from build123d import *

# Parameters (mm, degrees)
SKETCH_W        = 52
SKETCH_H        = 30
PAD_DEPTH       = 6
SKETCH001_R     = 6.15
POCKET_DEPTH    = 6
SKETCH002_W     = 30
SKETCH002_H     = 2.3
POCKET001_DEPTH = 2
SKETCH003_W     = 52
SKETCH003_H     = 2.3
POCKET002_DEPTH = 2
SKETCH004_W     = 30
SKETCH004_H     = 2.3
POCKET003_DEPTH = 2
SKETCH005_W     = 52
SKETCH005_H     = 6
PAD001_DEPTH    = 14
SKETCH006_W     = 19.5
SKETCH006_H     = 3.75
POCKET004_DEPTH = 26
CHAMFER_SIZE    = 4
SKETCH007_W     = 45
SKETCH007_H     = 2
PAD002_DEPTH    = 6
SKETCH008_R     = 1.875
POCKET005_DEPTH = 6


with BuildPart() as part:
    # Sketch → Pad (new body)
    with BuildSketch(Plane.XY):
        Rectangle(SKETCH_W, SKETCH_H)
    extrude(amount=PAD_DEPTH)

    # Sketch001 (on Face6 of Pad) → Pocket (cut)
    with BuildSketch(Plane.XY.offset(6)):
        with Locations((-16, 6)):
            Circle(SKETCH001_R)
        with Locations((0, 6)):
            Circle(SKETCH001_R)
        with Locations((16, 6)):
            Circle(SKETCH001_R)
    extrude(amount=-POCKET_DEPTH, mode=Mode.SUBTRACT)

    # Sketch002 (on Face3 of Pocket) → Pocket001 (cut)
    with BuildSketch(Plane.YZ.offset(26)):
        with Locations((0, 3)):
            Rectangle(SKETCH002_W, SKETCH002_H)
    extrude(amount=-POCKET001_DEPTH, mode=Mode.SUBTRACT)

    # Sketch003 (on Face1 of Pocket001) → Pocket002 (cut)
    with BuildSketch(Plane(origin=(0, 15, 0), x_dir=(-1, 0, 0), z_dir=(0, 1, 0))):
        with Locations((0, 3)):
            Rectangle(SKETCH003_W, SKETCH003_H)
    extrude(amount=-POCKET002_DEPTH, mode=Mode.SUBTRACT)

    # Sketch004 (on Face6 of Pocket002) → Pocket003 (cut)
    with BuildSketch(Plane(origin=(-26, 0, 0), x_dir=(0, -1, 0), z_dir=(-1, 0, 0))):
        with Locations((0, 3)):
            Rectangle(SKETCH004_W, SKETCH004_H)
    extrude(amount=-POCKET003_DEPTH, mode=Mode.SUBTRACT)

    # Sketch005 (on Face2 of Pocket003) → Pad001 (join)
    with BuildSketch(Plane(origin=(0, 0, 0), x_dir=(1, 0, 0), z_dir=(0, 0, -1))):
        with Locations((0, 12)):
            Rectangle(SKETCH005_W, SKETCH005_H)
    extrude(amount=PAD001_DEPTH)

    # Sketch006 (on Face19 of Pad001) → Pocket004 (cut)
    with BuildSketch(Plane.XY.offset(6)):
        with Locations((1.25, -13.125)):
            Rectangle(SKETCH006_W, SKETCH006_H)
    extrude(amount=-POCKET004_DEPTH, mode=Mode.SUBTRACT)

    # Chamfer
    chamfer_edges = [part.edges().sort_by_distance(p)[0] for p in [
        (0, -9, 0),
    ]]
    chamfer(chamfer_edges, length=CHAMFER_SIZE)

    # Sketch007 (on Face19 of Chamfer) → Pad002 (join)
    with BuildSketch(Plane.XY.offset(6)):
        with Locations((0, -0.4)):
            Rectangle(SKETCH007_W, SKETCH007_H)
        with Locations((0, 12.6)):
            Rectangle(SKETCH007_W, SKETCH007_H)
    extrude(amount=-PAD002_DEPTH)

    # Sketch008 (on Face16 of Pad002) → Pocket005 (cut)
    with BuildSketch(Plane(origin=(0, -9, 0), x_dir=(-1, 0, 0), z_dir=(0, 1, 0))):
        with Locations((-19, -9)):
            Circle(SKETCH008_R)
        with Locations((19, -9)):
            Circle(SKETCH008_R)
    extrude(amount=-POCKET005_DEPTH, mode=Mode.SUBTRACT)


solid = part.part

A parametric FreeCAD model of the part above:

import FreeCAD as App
import Part
import Sketcher
Q = App.Units.Quantity


def edges_at(feature, points):
    """Names of the edges that pass closest to the given points."""
    edges = feature.Shape.Edges
    near = lambda p: min(range(len(edges)), key=lambda i: edges[i].distToShape(Part.Vertex(*p))[0])
    return sorted({f"Edge{near(p) + 1}" for p in points})

doc = App.newDocument("Part")
body = doc.addObject("PartDesign::Body", "Body")

sketch1 = body.newObject("Sketcher::SketchObject", "Sketch")
sketch1.AttachmentSupport = (doc.getObject("XY_Plane"), [""])
sketch1.MapMode = "FlatFace"
sketch1.addGeometry([
    Part.LineSegment(App.Vector(-26, 15, 0), App.Vector(-26, -15, 0)),
    Part.LineSegment(App.Vector(-26, -15, 0), App.Vector(26, -15, 0)),
    Part.LineSegment(App.Vector(26, -15, 0), App.Vector(26, 15, 0)),
    Part.LineSegment(App.Vector(26, 15, 0), App.Vector(-26, 15, 0)),
], False)
sketch1.addConstraint([
    Sketcher.Constraint("Coincident", 0, 2, 1, 1),
    Sketcher.Constraint("Coincident", 1, 2, 2, 1),
    Sketcher.Constraint("Coincident", 2, 2, 3, 1),
    Sketcher.Constraint("Coincident", 3, 2, 0, 1),
    Sketcher.Constraint("Vertical", 0),
    Sketcher.Constraint("Horizontal", 1),
    Sketcher.Constraint("Vertical", 2),
    Sketcher.Constraint("Horizontal", 3),
    Sketcher.Constraint("Symmetric", 0, 2, 2, 2, -1, 1),
    Sketcher.Constraint("DistanceX", 1, 1, 1, 2, Q("52 mm")),
    Sketcher.Constraint("DistanceY", 0, 2, 0, 1, Q("30 mm")),
])
pad1 = body.newObject("PartDesign::Pad", "Pad")
pad1.Profile = sketch1
pad1.Length = 6

sketch2 = body.newObject("Sketcher::SketchObject", "Sketch001")
sketch2.AttachmentSupport = (doc.getObject("XY_Plane"), [""])
sketch2.MapMode = "FlatFace"
sketch2.AttachmentOffset = App.Placement(App.Vector(0, 0, 6), App.Rotation())
sketch2.addGeometry([
    Part.Circle(App.Vector(-16, 6, 0), App.Vector(0, 0, 1), 6.15),
    Part.Circle(App.Vector(0, 6, 0), App.Vector(0, 0, 1), 6.15),
    Part.Circle(App.Vector(16, 6, 0), App.Vector(0, 0, 1), 6.15),
], False)
sketch2.addConstraint([
    Sketcher.Constraint("Equal", 0, 1),
    Sketcher.Constraint("Equal", 1, 2),
    Sketcher.Constraint("Symmetric", 0, 3, 2, 3, -2),
    Sketcher.Constraint("PointOnObject", 1, 3, -2),
    Sketcher.Constraint("Horizontal", 0, 3, 1, 3),
    Sketcher.Constraint("Diameter", 0, Q("12.3 mm")),
    Sketcher.Constraint("DistanceX", 0, 3, -1, 1, Q("16 mm")),
    Sketcher.Constraint("DistanceY", -1, 1, 0, 3, Q("6 mm")),
])
pocket1 = body.newObject("PartDesign::Pocket", "Pocket")
pocket1.Profile = sketch2
pocket1.Length = 6

sketch3 = body.newObject("Sketcher::SketchObject", "Sketch002")
sketch3.AttachmentSupport = (doc.getObject("YZ_Plane"), [""])
sketch3.MapMode = "FlatFace"
sketch3.AttachmentOffset = App.Placement(App.Vector(0, 0, 26), App.Rotation())
sketch3.addGeometry([
    Part.LineSegment(App.Vector(-15, 4.15, 0), App.Vector(-15, 1.85, 0)),
    Part.LineSegment(App.Vector(-15, 1.85, 0), App.Vector(15, 1.85, 0)),
    Part.LineSegment(App.Vector(15, 1.85, 0), App.Vector(15, 4.15, 0)),
    Part.LineSegment(App.Vector(15, 4.15, 0), App.Vector(-15, 4.15, 0)),
], False)
sketch3.addConstraint([
    Sketcher.Constraint("Coincident", 0, 2, 1, 1),
    Sketcher.Constraint("Coincident", 1, 2, 2, 1),
    Sketcher.Constraint("Coincident", 2, 2, 3, 1),
    Sketcher.Constraint("Coincident", 3, 2, 0, 1),
    Sketcher.Constraint("Vertical", 0),
    Sketcher.Constraint("Horizontal", 1),
    Sketcher.Constraint("Vertical", 2),
    Sketcher.Constraint("Horizontal", 3),
    Sketcher.Constraint("DistanceX", 1, 1, 1, 2, Q("30 mm")),
    Sketcher.Constraint("DistanceY", 0, 2, 0, 1, Q("2.3 mm")),
    Sketcher.Constraint("DistanceX", 0, 2, -1, 1, Q("15 mm")),
    Sketcher.Constraint("DistanceY", -1, 1, 0, 2, Q("1.85 mm")),
])
pocket2 = body.newObject("PartDesign::Pocket", "Pocket001")
pocket2.Profile = sketch3
pocket2.Length = 2

sketch4 = body.newObject("Sketcher::SketchObject", "Sketch003")
sketch4.AttachmentSupport = (doc.getObject("XZ_Plane"), [""])
sketch4.MapMode = "FlatFace"
sketch4.AttachmentOffset = App.Placement(App.Vector(0, 0, -15), App.Rotation())
sketch4.addGeometry([
    Part.LineSegment(App.Vector(26, 4.15, 0), App.Vector(26, 1.85, 0)),
    Part.LineSegment(App.Vector(26, 1.85, 0), App.Vector(-26, 1.85, 0)),
    Part.LineSegment(App.Vector(-26, 1.85, 0), App.Vector(-26, 4.15, 0)),
    Part.LineSegment(App.Vector(-26, 4.15, 0), App.Vector(26, 4.15, 0)),
], False)
sketch4.addConstraint([
    Sketcher.Constraint("Coincident", 0, 2, 1, 1),
    Sketcher.Constraint("Coincident", 1, 2, 2, 1),
    Sketcher.Constraint("Coincident", 2, 2, 3, 1),
    Sketcher.Constraint("Coincident", 3, 2, 0, 1),
    Sketcher.Constraint("Vertical", 0),
    Sketcher.Constraint("Horizontal", 1),
    Sketcher.Constraint("Vertical", 2),
    Sketcher.Constraint("Horizontal", 3),
    Sketcher.Constraint("DistanceX", 1, 2, 1, 1, Q("52 mm")),
    Sketcher.Constraint("DistanceY", 0, 2, 0, 1, Q("2.3 mm")),
    Sketcher.Constraint("DistanceX", -1, 1, 0, 2, Q("26 mm")),
    Sketcher.Constraint("DistanceY", -1, 1, 0, 2, Q("1.85 mm")),
])
pocket3 = body.newObject("PartDesign::Pocket", "Pocket002")
pocket3.Profile = sketch4
pocket3.Length = 2
pocket3.Reversed = True

sketch5 = body.newObject("Sketcher::SketchObject", "Sketch004")
sketch5.AttachmentSupport = (doc.getObject("YZ_Plane"), [""])
sketch5.MapMode = "FlatFace"
sketch5.AttachmentOffset = App.Placement(App.Vector(0, 0, -26), App.Rotation())
sketch5.addGeometry([
    Part.LineSegment(App.Vector(15, 4.15, 0), App.Vector(15, 1.85, 0)),
    Part.LineSegment(App.Vector(15, 1.85, 0), App.Vector(-15, 1.85, 0)),
    Part.LineSegment(App.Vector(-15, 1.85, 0), App.Vector(-15, 4.15, 0)),
    Part.LineSegment(App.Vector(-15, 4.15, 0), App.Vector(15, 4.15, 0)),
], False)
sketch5.addConstraint([
    Sketcher.Constraint("Coincident", 0, 2, 1, 1),
    Sketcher.Constraint("Coincident", 1, 2, 2, 1),
    Sketcher.Constraint("Coincident", 2, 2, 3, 1),
    Sketcher.Constraint("Coincident", 3, 2, 0, 1),
    Sketcher.Constraint("Vertical", 0),
    Sketcher.Constraint("Horizontal", 1),
    Sketcher.Constraint("Vertical", 2),
    Sketcher.Constraint("Horizontal", 3),
    Sketcher.Constraint("DistanceX", 1, 2, 1, 1, Q("30 mm")),
    Sketcher.Constraint("DistanceY", 0, 2, 0, 1, Q("2.3 mm")),
    Sketcher.Constraint("DistanceX", -1, 1, 0, 2, Q("15 mm")),
    Sketcher.Constraint("DistanceY", -1, 1, 0, 2, Q("1.85 mm")),
])
pocket4 = body.newObject("PartDesign::Pocket", "Pocket003")
pocket4.Profile = sketch5
pocket4.Length = 2
pocket4.Reversed = True

sketch6 = body.newObject("Sketcher::SketchObject", "Sketch005")
sketch6.AttachmentSupport = (doc.getObject("XY_Plane"), [""])
sketch6.MapMode = "FlatFace"
sketch6.addGeometry([
    Part.LineSegment(App.Vector(-26, -15, 0), App.Vector(-26, -9, 0)),
    Part.LineSegment(App.Vector(-26, -9, 0), App.Vector(26, -9, 0)),
    Part.LineSegment(App.Vector(26, -9, 0), App.Vector(26, -15, 0)),
    Part.LineSegment(App.Vector(26, -15, 0), App.Vector(-26, -15, 0)),
], False)
sketch6.addConstraint([
    Sketcher.Constraint("Coincident", 0, 2, 1, 1),
    Sketcher.Constraint("Coincident", 1, 2, 2, 1),
    Sketcher.Constraint("Coincident", 2, 2, 3, 1),
    Sketcher.Constraint("Coincident", 3, 2, 0, 1),
    Sketcher.Constraint("Vertical", 0),
    Sketcher.Constraint("Horizontal", 1),
    Sketcher.Constraint("Vertical", 2),
    Sketcher.Constraint("Horizontal", 3),
    Sketcher.Constraint("DistanceX", 1, 1, 1, 2, Q("52 mm")),
    Sketcher.Constraint("DistanceY", 0, 1, 0, 2, Q("6 mm")),
    Sketcher.Constraint("DistanceX", 0, 2, -1, 1, Q("26 mm")),
    Sketcher.Constraint("DistanceY", 0, 2, -1, 1, Q("9 mm")),
])
pad2 = body.newObject("PartDesign::Pad", "Pad001")
pad2.Profile = sketch6
pad2.Length = 14
pad2.Reversed = True

sketch7 = body.newObject("Sketcher::SketchObject", "Sketch006")
sketch7.AttachmentSupport = (doc.getObject("XY_Plane"), [""])
sketch7.MapMode = "FlatFace"
sketch7.AttachmentOffset = App.Placement(App.Vector(0, 0, 6), App.Rotation())
sketch7.addGeometry([
    Part.LineSegment(App.Vector(-8.5, -11.25, 0), App.Vector(-8.5, -15, 0)),
    Part.LineSegment(App.Vector(-8.5, -15, 0), App.Vector(11, -15, 0)),
    Part.LineSegment(App.Vector(11, -15, 0), App.Vector(11, -11.25, 0)),
    Part.LineSegment(App.Vector(11, -11.25, 0), App.Vector(-8.5, -11.25, 0)),
], False)
sketch7.addConstraint([
    Sketcher.Constraint("Coincident", 0, 2, 1, 1),
    Sketcher.Constraint("Coincident", 1, 2, 2, 1),
    Sketcher.Constraint("Coincident", 2, 2, 3, 1),
    Sketcher.Constraint("Coincident", 3, 2, 0, 1),
    Sketcher.Constraint("Vertical", 0),
    Sketcher.Constraint("Horizontal", 1),
    Sketcher.Constraint("Vertical", 2),
    Sketcher.Constraint("Horizontal", 3),
    Sketcher.Constraint("DistanceX", 1, 1, 1, 2, Q("19.5 mm")),
    Sketcher.Constraint("DistanceY", 0, 2, -1, 1, Q("15 mm")),
    Sketcher.Constraint("DistanceX", -1, 1, 1, 2, Q("11 mm")),
    Sketcher.Constraint("DistanceY", 0, 2, 0, 1, Q("3.75 mm")),
])
pocket5 = body.newObject("PartDesign::Pocket", "Pocket004")
pocket5.Profile = sketch7
pocket5.Length = 26
doc.recompute()

chamfer = body.newObject("PartDesign::Chamfer", "Chamfer")
chamfer.Base = (pocket5, edges_at(pocket5, [(0, -9, 0)]))
chamfer.Size = 4

sketch8 = body.newObject("Sketcher::SketchObject", "Sketch007")
sketch8.AttachmentSupport = (doc.getObject("XY_Plane"), [""])
sketch8.MapMode = "FlatFace"
sketch8.AttachmentOffset = App.Placement(App.Vector(0, 0, 6), App.Rotation())
sketch8.addGeometry([
    Part.LineSegment(App.Vector(-22.5, 0.6, 0), App.Vector(-22.5, -1.4, 0)),
    Part.LineSegment(App.Vector(-22.5, -1.4, 0), App.Vector(22.5, -1.4, 0)),
    Part.LineSegment(App.Vector(22.5, -1.4, 0), App.Vector(22.5, 0.6, 0)),
    Part.LineSegment(App.Vector(22.5, 0.6, 0), App.Vector(-22.5, 0.6, 0)),
    Part.LineSegment(App.Vector(-22.5, 13.6, 0), App.Vector(-22.5, 11.6, 0)),
    Part.LineSegment(App.Vector(-22.5, 11.6, 0), App.Vector(22.5, 11.6, 0)),
    Part.LineSegment(App.Vector(22.5, 11.6, 0), App.Vector(22.5, 13.6, 0)),
    Part.LineSegment(App.Vector(22.5, 13.6, 0), App.Vector(-22.5, 13.6, 0)),
], False)
sketch8.addConstraint([
    Sketcher.Constraint("Coincident", 0, 2, 1, 1),
    Sketcher.Constraint("Coincident", 1, 2, 2, 1),
    Sketcher.Constraint("Coincident", 2, 2, 3, 1),
    Sketcher.Constraint("Coincident", 3, 2, 0, 1),
    Sketcher.Constraint("Coincident", 4, 2, 5, 1),
    Sketcher.Constraint("Coincident", 5, 2, 6, 1),
    Sketcher.Constraint("Coincident", 6, 2, 7, 1),
    Sketcher.Constraint("Coincident", 7, 2, 4, 1),
    Sketcher.Constraint("Vertical", 0),
    Sketcher.Constraint("Horizontal", 1),
    Sketcher.Constraint("Vertical", 2),
    Sketcher.Constraint("Horizontal", 3),
    Sketcher.Constraint("Vertical", 4),
    Sketcher.Constraint("Horizontal", 5),
    Sketcher.Constraint("Vertical", 6),
    Sketcher.Constraint("Horizontal", 7),
    Sketcher.Constraint("Vertical", 3, 2, 4, 2),
    Sketcher.Constraint("Vertical", 2, 2, 5, 2),
    Sketcher.Constraint("Equal", 2, 4),
    Sketcher.Constraint("DistanceX", 1, 1, 1, 2, Q("45 mm")),
    Sketcher.Constraint("DistanceY", 0, 2, 0, 1, Q("2 mm")),
    Sketcher.Constraint("DistanceY", 3, 2, 4, 2, Q("11 mm")),
    Sketcher.Constraint("DistanceX", 0, 2, -1, 1, Q("22.5 mm")),
    Sketcher.Constraint("DistanceY", 0, 2, -1, 1, Q("1.4 mm")),
])
pad3 = body.newObject("PartDesign::Pad", "Pad002")
pad3.Profile = sketch8
pad3.Length = 6
pad3.Reversed = True

sketch9 = body.newObject("Sketcher::SketchObject", "Sketch008")
sketch9.AttachmentSupport = (doc.getObject("XZ_Plane"), [""])
sketch9.MapMode = "FlatFace"
sketch9.AttachmentOffset = App.Placement(App.Vector(0, 0, 9), App.Rotation())
sketch9.addGeometry([
    Part.Circle(App.Vector(19, -9, 0), App.Vector(0, 0, 1), 1.875),
    Part.Circle(App.Vector(-19, -9, 0), App.Vector(0, 0, 1), 1.875),
], False)
sketch9.addConstraint([
    Sketcher.Constraint("Equal", 0, 1),
    Sketcher.Constraint("Symmetric", 0, 3, 1, 3, -2),
    Sketcher.Constraint("Diameter", 0, Q("3.75 mm")),
    Sketcher.Constraint("DistanceX", -1, 1, 0, 3, Q("19 mm")),
    Sketcher.Constraint("DistanceY", 0, 3, -1, 1, Q("9 mm")),
])
pocket6 = body.newObject("PartDesign::Pocket", "Pocket005")
pocket6.Profile = sketch9
pocket6.Length = 6
pocket6.Reversed = True

doc.recompute()
